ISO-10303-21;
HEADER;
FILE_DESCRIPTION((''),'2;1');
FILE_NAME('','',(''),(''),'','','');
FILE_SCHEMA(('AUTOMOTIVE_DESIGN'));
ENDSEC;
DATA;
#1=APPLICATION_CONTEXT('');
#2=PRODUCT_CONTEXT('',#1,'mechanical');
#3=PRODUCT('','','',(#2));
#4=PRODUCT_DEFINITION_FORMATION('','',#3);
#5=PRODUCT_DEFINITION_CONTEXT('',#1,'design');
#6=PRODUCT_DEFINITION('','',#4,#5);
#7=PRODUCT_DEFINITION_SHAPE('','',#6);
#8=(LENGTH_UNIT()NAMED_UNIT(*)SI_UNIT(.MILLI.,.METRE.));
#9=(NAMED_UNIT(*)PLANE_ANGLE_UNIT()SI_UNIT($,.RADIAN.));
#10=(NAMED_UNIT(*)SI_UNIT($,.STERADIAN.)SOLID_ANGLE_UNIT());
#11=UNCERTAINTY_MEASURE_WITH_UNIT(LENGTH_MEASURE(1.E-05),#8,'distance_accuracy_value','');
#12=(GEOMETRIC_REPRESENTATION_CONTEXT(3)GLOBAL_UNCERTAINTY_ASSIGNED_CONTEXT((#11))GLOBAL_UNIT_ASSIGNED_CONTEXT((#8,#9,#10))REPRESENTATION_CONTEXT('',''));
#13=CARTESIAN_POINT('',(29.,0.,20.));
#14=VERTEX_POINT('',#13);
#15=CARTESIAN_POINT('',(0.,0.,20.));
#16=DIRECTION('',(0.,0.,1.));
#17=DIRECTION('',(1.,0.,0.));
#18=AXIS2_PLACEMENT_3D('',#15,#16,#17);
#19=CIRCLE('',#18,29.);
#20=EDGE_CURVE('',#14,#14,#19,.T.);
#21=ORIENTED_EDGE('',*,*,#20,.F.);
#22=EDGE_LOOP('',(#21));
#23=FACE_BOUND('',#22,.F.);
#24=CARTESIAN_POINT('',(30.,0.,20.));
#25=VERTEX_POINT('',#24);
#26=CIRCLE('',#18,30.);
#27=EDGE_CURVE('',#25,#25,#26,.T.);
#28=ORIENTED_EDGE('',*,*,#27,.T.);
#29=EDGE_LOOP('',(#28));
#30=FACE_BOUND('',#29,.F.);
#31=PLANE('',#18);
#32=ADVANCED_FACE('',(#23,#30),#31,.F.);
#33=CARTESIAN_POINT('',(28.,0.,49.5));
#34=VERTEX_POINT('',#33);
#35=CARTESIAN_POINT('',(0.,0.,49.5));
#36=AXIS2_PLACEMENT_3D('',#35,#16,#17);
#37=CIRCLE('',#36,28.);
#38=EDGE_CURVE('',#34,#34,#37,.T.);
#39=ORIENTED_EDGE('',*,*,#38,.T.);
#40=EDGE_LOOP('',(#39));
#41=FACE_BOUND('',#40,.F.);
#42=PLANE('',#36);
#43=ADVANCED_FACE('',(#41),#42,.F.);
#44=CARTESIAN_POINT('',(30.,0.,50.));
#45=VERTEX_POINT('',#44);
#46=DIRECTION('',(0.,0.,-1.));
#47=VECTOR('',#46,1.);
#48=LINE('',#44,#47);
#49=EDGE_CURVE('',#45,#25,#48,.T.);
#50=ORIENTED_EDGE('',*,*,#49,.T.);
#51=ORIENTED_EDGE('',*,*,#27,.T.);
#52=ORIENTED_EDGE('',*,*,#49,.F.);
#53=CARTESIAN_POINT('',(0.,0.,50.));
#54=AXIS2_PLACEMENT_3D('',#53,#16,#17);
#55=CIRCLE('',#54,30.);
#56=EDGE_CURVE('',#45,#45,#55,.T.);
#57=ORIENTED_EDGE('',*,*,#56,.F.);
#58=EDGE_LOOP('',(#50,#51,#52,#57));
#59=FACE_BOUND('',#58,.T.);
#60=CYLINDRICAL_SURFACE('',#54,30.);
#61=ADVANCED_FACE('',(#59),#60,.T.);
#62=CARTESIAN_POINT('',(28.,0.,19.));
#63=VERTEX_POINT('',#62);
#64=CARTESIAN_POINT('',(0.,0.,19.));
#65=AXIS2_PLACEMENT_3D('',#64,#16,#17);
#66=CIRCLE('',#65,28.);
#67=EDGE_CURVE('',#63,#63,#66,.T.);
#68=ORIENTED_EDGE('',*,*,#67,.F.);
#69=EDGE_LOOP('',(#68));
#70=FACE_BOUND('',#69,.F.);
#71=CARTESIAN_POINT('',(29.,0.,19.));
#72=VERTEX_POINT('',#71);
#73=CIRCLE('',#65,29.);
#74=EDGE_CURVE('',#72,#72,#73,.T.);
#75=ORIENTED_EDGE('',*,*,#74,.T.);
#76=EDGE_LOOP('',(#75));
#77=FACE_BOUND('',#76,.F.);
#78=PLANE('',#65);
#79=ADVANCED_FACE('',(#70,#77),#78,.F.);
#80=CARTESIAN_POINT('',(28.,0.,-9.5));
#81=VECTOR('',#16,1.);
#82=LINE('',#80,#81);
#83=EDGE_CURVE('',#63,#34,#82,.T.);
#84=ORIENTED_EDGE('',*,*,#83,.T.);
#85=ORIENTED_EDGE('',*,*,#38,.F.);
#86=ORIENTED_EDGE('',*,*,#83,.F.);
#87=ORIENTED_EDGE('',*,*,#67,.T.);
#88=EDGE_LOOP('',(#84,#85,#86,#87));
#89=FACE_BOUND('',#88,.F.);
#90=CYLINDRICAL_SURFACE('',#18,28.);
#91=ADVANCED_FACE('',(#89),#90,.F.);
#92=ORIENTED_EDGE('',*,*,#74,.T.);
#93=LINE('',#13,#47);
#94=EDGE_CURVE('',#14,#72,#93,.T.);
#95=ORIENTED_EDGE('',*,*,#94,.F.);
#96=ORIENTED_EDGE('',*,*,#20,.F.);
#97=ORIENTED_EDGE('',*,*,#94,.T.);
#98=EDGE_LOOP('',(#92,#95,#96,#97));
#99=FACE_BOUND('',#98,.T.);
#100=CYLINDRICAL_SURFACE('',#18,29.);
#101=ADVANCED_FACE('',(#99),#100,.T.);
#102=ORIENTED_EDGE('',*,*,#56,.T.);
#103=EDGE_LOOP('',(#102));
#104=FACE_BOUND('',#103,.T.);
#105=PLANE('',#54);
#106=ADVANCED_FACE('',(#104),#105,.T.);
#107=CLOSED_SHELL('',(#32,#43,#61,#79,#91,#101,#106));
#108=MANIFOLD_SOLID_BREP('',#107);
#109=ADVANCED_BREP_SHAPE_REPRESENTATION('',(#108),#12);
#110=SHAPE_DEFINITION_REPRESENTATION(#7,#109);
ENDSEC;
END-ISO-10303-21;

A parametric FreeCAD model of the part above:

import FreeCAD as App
import Part
import Sketcher

V = App.Vector
Q = App.Units.Quantity

doc = App.newDocument("Part")
body = doc.addObject("PartDesign::Body", "Body")

sketch1 = doc.addObject("Sketcher::SketchObject", "Sketch")
body.addObject(sketch1)
sketch1.AttachmentSupport = (doc.XY_Plane, [""])
sketch1.MapMode = "FlatFace"
sketch1.addGeometry(Part.Circle(V(0, 0, 0), V(0, 0, 1), 30), False)
sketch1.addConstraint([
    Sketcher.Constraint("Coincident", 0, 3, -1, 1),
    Sketcher.Constraint("Diameter", 0, Q("60 mm")),
])
pad1 = doc.addObject("PartDesign::Pad", "Pad")
body.addObject(pad1)
pad1.Profile = sketch1
pad1.Length = 20

sketch2 = doc.addObject("Sketcher::SketchObject", "Sketch001")
body.addObject(sketch2)
sketch2.AttachmentSupport = (doc.XY_Plane, [""])
sketch2.MapMode = "FlatFace"
sketch2.AttachmentOffset = App.Placement(V(0, 0, 20), App.Rotation())
sketch2.addGeometry(Part.Circle(V(0, 0, 0), V(0, 0, 1), 29), False)
sketch2.addConstraint([
    Sketcher.Constraint("Coincident", 0, 3, -1, 1),
    Sketcher.Constraint("Diameter", 0, Q("58 mm")),
])
pocket1 = doc.addObject("PartDesign::Pocket", "Pocket")
body.addObject(pocket1)
pocket1.Profile = sketch2
pocket1.Length = 1

sketch3 = doc.addObject("Sketcher::SketchObject", "Sketch002")
body.addObject(sketch3)
sketch3.AttachmentSupport = (doc.XY_Plane, [""])
sketch3.MapMode = "FlatFace"
sketch3.AttachmentOffset = App.Placement(V(0, 0, 20), App.Rotation())
sketch3.addGeometry(Part.Circle(V(0, 0, 0), V(0, 0, 1), 28), False)
sketch3.addConstraint([
    Sketcher.Constraint("Coincident", 0, 3, -1, 1),
    Sketcher.Constraint("Diameter", 0, Q("56 mm")),
])
pocket2 = doc.addObject("PartDesign::Pocket", "Pocket001")
body.addObject(pocket2)
pocket2.Profile = sketch3
pocket2.Length = 19
body2 = doc.addObject("PartDesign::Body", "Body001")

sketch4 = doc.addObject("Sketcher::SketchObject", "Sketch003")
body2.addObject(sketch4)
sketch4.AttachmentSupport = (doc.getObject("XY_Plane001"), [""])
sketch4.MapMode = "FlatFace"
sketch4.AttachmentOffset = App.Placement(V(0, 0, 50), App.Rotation())
sketch4.addGeometry(Part.Circle(V(0, 0, 0), V(0, 0, 1), 30), False)
sketch4.addConstraint([
    Sketcher.Constraint("Coincident", 0, 3, -1, 1),
    Sketcher.Constraint("Diameter", 0, Q("60 mm")),
])
pad2 = doc.addObject("PartDesign::Pad", "Pad001")
body2.addObject(pad2)
pad2.Profile = sketch4
pad2.Length = 31
pad2.Reversed = True

sketch5 = doc.addObject("Sketcher::SketchObject", "Sketch004")
body2.addObject(sketch5)
sketch5.AttachmentSupport = (doc.getObject("XY_Plane001"), [""])
sketch5.MapMode = "FlatFace"
sketch5.AttachmentOffset = App.Placement(V(0, 0, 20), App.Rotation())
sketch5.addGeometry(Part.Circle(V(0, 0, 0), V(0, 0, 1), 28), False)
sketch5.addConstraint([
    Sketcher.Constraint("Coincident", 0, 3, -1, 1),
    Sketcher.Constraint("Diameter", 0, Q("56 mm")),
])
pocket3 = doc.addObject("PartDesign::Pocket", "Pocket002")
body2.addObject(pocket3)
pocket3.Profile = sketch5
pocket3.Length = 59
pocket3.Midplane = True
doc.recompute()

boolean = doc.addObject("PartDesign::Boolean", "Boolean")
body2.addObject(boolean)
boolean.Type = "Cut"
boolean.addObjects([body])

doc.recompute()
